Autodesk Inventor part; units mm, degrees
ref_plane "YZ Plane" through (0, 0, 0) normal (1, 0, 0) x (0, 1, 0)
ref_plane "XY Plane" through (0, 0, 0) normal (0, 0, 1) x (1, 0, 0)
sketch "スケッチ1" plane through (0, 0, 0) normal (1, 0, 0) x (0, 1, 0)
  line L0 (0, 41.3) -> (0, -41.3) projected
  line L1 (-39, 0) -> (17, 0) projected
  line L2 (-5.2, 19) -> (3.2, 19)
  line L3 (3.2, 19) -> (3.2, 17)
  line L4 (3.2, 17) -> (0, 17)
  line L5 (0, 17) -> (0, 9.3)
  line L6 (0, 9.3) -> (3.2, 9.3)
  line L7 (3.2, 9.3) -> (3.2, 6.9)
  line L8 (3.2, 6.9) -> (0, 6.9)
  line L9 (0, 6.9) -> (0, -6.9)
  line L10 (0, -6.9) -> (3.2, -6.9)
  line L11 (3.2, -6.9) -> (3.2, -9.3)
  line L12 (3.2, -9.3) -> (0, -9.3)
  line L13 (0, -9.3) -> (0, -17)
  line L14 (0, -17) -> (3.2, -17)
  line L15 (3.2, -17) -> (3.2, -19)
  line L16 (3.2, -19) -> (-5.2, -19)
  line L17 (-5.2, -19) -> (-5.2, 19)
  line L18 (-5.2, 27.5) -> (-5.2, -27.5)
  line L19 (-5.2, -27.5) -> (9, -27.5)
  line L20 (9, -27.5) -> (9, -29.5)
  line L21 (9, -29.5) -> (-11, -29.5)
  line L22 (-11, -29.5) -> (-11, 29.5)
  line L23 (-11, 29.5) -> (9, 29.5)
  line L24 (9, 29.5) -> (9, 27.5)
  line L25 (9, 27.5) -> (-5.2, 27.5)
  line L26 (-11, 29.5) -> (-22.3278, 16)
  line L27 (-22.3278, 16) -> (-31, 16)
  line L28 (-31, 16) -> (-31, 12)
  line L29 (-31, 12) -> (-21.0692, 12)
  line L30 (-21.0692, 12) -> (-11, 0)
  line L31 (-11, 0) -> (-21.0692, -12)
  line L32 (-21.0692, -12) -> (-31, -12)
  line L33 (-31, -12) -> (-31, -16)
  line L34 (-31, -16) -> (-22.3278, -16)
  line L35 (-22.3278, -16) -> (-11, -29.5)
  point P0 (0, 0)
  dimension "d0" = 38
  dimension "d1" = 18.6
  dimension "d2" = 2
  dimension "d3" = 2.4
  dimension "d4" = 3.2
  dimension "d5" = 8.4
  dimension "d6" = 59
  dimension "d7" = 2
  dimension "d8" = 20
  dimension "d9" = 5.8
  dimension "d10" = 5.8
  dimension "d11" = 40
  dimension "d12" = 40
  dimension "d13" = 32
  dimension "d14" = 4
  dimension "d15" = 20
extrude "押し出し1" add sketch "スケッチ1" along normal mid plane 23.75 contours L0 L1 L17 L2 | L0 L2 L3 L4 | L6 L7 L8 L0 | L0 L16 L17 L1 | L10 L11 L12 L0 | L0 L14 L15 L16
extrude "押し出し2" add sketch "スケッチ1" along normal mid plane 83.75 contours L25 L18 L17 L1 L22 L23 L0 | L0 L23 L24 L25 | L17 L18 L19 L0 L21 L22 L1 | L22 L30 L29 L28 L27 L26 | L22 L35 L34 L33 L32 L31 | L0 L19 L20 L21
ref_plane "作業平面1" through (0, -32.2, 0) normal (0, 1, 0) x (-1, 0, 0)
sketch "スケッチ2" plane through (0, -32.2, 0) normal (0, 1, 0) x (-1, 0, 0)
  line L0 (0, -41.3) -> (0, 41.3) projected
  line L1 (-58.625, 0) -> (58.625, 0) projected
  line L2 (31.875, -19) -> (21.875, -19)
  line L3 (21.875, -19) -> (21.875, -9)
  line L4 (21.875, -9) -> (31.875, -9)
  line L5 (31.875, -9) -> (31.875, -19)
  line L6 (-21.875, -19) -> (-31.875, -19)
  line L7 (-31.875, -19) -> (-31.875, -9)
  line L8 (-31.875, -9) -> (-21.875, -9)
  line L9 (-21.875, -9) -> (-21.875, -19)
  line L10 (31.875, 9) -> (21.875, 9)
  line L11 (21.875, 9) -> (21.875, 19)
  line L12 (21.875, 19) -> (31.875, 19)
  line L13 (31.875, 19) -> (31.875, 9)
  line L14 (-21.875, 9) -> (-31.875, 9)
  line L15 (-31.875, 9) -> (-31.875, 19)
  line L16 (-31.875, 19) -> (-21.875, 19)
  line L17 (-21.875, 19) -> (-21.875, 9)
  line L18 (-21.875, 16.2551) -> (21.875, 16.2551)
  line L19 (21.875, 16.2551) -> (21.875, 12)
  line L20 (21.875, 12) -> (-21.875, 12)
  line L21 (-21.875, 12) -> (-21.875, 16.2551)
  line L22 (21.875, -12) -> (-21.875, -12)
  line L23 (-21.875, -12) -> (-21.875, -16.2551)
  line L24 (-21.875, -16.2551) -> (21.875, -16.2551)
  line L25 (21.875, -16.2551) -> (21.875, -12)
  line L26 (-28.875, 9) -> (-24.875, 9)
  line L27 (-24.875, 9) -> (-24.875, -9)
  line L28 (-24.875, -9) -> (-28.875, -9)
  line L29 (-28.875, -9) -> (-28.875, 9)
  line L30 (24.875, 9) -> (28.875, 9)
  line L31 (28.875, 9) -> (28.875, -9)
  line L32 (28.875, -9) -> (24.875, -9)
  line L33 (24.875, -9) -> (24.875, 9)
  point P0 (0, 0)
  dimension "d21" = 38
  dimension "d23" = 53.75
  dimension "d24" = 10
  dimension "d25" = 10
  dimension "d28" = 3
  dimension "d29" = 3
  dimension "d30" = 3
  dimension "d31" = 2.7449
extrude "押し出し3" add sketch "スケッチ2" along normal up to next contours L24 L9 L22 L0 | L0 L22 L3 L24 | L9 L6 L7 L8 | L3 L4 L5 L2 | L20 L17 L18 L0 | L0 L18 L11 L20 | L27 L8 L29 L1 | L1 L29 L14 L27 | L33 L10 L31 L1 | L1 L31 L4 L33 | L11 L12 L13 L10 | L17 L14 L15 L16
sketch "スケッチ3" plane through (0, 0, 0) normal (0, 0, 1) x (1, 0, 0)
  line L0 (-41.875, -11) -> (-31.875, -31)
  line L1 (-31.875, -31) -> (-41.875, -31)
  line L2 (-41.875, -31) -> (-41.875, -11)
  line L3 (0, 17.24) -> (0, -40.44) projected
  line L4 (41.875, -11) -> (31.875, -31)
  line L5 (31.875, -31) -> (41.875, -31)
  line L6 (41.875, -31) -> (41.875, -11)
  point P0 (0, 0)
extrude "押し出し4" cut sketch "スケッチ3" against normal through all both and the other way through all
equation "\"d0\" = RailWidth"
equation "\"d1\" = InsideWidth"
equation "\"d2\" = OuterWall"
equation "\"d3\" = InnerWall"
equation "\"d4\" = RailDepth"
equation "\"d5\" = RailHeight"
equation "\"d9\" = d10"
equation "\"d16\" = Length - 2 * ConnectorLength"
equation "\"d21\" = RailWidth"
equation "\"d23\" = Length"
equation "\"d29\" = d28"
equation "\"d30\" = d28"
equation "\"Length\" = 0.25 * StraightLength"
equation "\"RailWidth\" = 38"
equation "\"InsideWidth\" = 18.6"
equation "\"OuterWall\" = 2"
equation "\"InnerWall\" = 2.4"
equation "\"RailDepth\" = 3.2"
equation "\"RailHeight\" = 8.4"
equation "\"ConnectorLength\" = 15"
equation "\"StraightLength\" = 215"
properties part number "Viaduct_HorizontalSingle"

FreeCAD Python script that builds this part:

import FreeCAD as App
import Part
import Sketcher
Q = App.Units.Quantity


def add_polygon(sketch, points):
    """Adds a closed chain of lines whose ends are joined by coincident constraints."""
    first, n = sketch.GeometryCount, len(points)
    for a, b in zip(points, points[1:] + points[:1]):
        sketch.addGeometry(Part.LineSegment(App.Vector(*a, 0), App.Vector(*b, 0)), False)
    for i in range(n):
        sketch.addConstraint(Sketcher.Constraint("Coincident", first + i, 2, first + (i + 1) % n, 1))

doc = App.newDocument("Part")
body = doc.addObject("PartDesign::Body", "Body")

# Sketch on YZ plane
sketch1 = doc.addObject("Sketcher::SketchObject", "Sketch")
body.addObject(sketch1)
sketch1.AttachmentSupport = (doc.YZ_Plane, [""])
sketch1.MapMode = "FlatFace"
add_polygon(sketch1, [(0, 9.3), (0, 17), (3.2, 17), (3.2, 19), (-5.2, 19), (-5.2, -19), (3.2, -19), (3.2, -17), (0, -17), (0, -9.3), (3.2, -9.3), (3.2, -6.9), (0, -6.9), (0, 6.9), (3.2, 6.9), (3.2, 9.3)])  # lines 0-15
sketch1.addConstraint([
    Sketcher.Constraint("Vertical", 0),
    Sketcher.Constraint("Horizontal", 1),
    Sketcher.Constraint("Vertical", 2),
    Sketcher.Constraint("Horizontal", 3),
    Sketcher.Constraint("Vertical", 4),
    Sketcher.Constraint("Horizontal", 5),
    Sketcher.Constraint("Vertical", 6),
    Sketcher.Constraint("Horizontal", 7),
    Sketcher.Constraint("Vertical", 8),
    Sketcher.Constraint("Horizontal", 9),
    Sketcher.Constraint("Vertical", 10),
    Sketcher.Constraint("Horizontal", 11),
    Sketcher.Constraint("Vertical", 12),
    Sketcher.Constraint("Horizontal", 13),
    Sketcher.Constraint("Vertical", 14),
    Sketcher.Constraint("Horizontal", 15),
    Sketcher.Constraint("Symmetric", 0, 2, 7, 2, -1, 1),
    Sketcher.Constraint("Symmetric", 11, 2, 12, 2, -1, 1),
    Sketcher.Constraint("Symmetric", 2, 2, 5, 2, -1),
    Sketcher.Constraint("Symmetric", 9, 2, 14, 2, -1),
    Sketcher.Constraint("PointOnObject", 0, 2, -2),
    Sketcher.Constraint("Vertical", 6, 2, 9, 2),
    Sketcher.Constraint("DistanceY", 2, 1, 2, 2, 2.0),
    Sketcher.Constraint("DistanceY", 4, 2, 4, 1, 38.0),
    Sketcher.Constraint("DistanceX", 1, 1, 1, 2, 3.2),
    Sketcher.Constraint("DistanceX", 3, 2, 3, 1, 8.4),
    Sketcher.Constraint("DistanceY", 10, 1, 10, 2, 2.4),
    Sketcher.Constraint("DistanceY", 0, 1, 0, 2, 7.7),
])
pad1 = doc.addObject("PartDesign::Pad", "Pad")
body.addObject(pad1)
pad1.Profile = sketch1
pad1.Length = 23.75
pad1.Midplane = True

# Sketch on YZ plane
sketch2 = doc.addObject("Sketcher::SketchObject", "Sketch001")
body.addObject(sketch2)
sketch2.AttachmentSupport = (doc.YZ_Plane, [""])
sketch2.MapMode = "FlatFace"
add_polygon(sketch2, [(-5.2, 27.5), (9, 27.5), (9, 29.5), (-11, 29.5), (-22.3, 16), (-31, 16), (-31, 12), (-21.1, 12), (-11, 0), (-21.1, -12), (-31, -12), (-31, -16), (-22.3, -16), (-11, -29.5), (9, -29.5), (9, -27.5), (-5.2, -27.5)])  # lines 0-16
sketch2.addConstraint([
    Sketcher.Constraint("Horizontal", 0),
    Sketcher.Constraint("Vertical", 1),
    Sketcher.Constraint("Horizontal", 2),
    Sketcher.Constraint("Horizontal", 4),
    Sketcher.Constraint("Vertical", 5),
    Sketcher.Constraint("Horizontal", 6),
    Sketcher.Constraint("Horizontal", 9),
    Sketcher.Constraint("Vertical", 10),
    Sketcher.Constraint("Horizontal", 11),
    Sketcher.Constraint("Horizontal", 13),
    Sketcher.Constraint("Vertical", 14),
    Sketcher.Constraint("Horizontal", 15),
    Sketcher.Constraint("Vertical", 16),
    Sketcher.Constraint("Symmetric", 6, 2, 8, 2, -1),
    Sketcher.Constraint("Symmetric", 4, 2, 10, 2, -1),
    Sketcher.Constraint("Symmetric", 2, 2, 12, 2, -1),
    Sketcher.Constraint("Symmetric", 0, 2, 14, 2, -1),
    Sketcher.Constraint("PointOnObject", 7, 2, -1),
    Sketcher.Constraint("Parallel", 3, 8),
    Sketcher.Constraint("Parallel", 7, 12),
    Sketcher.Constraint("Vertical", 2, 2, 7, 2),
    Sketcher.Constraint("DistanceX", 2, 2, 2, 1, 20.0),
    Sketcher.Constraint("DistanceY", 1, 1, 1, 2, 2.0),
    Sketcher.Constraint("DistanceY", 5, 2, 5, 1, 4.0),
    Sketcher.Constraint("DistanceX", 4, 2, 2, 2, 20.0),
    Sketcher.Constraint("DistanceX", 12, 2, 15, 2, 5.8),
    Sketcher.Constraint("DistanceY", 16, 1, 16, 2, 55.0),
    Sketcher.Constraint("Angle", 3, Q("-130 deg")),
    Sketcher.Constraint("DistanceX", -1, 1, 0, 2, 9.0),
    Sketcher.Constraint("DistanceY", -1, 1, 3, 2, 16.0),
])
pad2 = doc.addObject("PartDesign::Pad", "Pad001")
body.addObject(pad2)
pad2.Profile = sketch2
pad2.Length = 83.75
pad2.Midplane = True

# Sketch on XZ plane
sketch3 = doc.addObject("Sketcher::SketchObject", "Sketch002")
body.addObject(sketch3)
sketch3.AttachmentSupport = (doc.XZ_Plane, [""])
sketch3.MapMode = "FlatFace"
sketch3.AttachmentOffset = App.Placement(App.Vector(0, 0, 32.2), App.Rotation())
add_polygon(sketch3, [(21.9, -16.3), (-21.9, -16.3), (-21.9, -19), (-31.9, -19), (-31.9, -9), (-28.9, -9), (-28.9, 9), (-31.9, 9), (-31.9, 19), (-21.9, 19), (-21.9, 16.3), (21.9, 16.3), (21.9, 19), (31.9, 19), (31.9, 9), (28.9, 9), (28.9, -9), (31.9, -9), (31.9, -19), (21.9, -19)])  # lines 0-19
add_polygon(sketch3, [(21.9, -12), (21.9, -9), (24.9, -9), (24.9, 9), (21.9, 9), (21.9, 12), (-21.9, 12), (-21.9, 9), (-24.9, 9), (-24.9, -9), (-21.9, -9), (-21.9, -12)])  # lines 20-31
sketch3.addConstraint([
    Sketcher.Constraint("Horizontal", 0),
    Sketcher.Constraint("Vertical", 1),
    Sketcher.Constraint("Horizontal", 2),
    Sketcher.Constraint("Vertical", 3),
    Sketcher.Constraint("Horizontal", 4),
    Sketcher.Constraint("Vertical", 5),
    Sketcher.Constraint("Horizontal", 6),
    Sketcher.Constraint("Vertical", 7),
    Sketcher.Constraint("Horizontal", 8),
    Sketcher.Constraint("Vertical", 9),
    Sketcher.Constraint("Horizontal", 10),
    Sketcher.Constraint("Vertical", 11),
    Sketcher.Constraint("Horizontal", 12),
    Sketcher.Constraint("Vertical", 13),
    Sketcher.Constraint("Horizontal", 14),
    Sketcher.Constraint("Vertical", 15),
    Sketcher.Constraint("Horizontal", 16),
    Sketcher.Constraint("Vertical", 17),
    Sketcher.Constraint("Horizontal", 18),
    Sketcher.Constraint("Vertical", 19),
    Sketcher.Constraint("Vertical", 20),
    Sketcher.Constraint("Horizontal", 21),
    Sketcher.Constraint("Vertical", 22),
    Sketcher.Constraint("Horizontal", 23),
    Sketcher.Constraint("Vertical", 24),
    Sketcher.Constraint("Horizontal", 25),
    Sketcher.Constraint("Vertical", 26),
    Sketcher.Constraint("Horizontal", 27),
    Sketcher.Constraint("Vertical", 28),
    Sketcher.Constraint("Horizontal", 29),
    Sketcher.Constraint("Vertical", 30),
    Sketcher.Constraint("Horizontal", 31),
    Sketcher.Constraint("Symmetric", 0, 2, 10, 2, -1, 1),
    Sketcher.Constraint("Symmetric", 2, 2, 12, 2, -1, 1),
    Sketcher.Constraint("Symmetric", 4, 2, 14, 2, -1, 1),
    Sketcher.Constraint("Symmetric", 6, 2, 16, 2, -1, 1),
    Sketcher.Constraint("Symmetric", 8, 2, 18, 2, -1, 1),
    Sketcher.Constraint("Symmetric", 20, 2, 26, 2, -1, 1),
    Sketcher.Constraint("Symmetric", 22, 2, 28, 2, -1, 1),
    Sketcher.Constraint("Symmetric", 24, 2, 30, 2, -1, 1),
    Sketcher.Constraint("Symmetric", 8, 2, 11, 2, -2),
    Sketcher.Constraint("Symmetric", 6, 2, 13, 2, -2),
    Sketcher.Constraint("Symmetric", 23, 2, 26, 2, -2),
    Sketcher.Constraint("Horizontal", 16, 2, 20, 2),
    Sketcher.Constraint("Vertical", 19, 2, 20, 2),
    Sketcher.Constraint("Equal", 16, 21),
    Sketcher.Constraint("Equal", 18, 3),
    Sketcher.Constraint("Equal", 29, 20),
    Sketcher.Constraint("DistanceX", 2, 2, 2, 1, 10.0),
    Sketcher.Constraint("DistanceX", 4, 1, 4, 2, 3.0),
    Sketcher.Constraint("DistanceY", 1, 2, 1, 1, 2.745),
    Sketcher.Constraint("DistanceY", 5, 1, 5, 2, 18.0),
    Sketcher.Constraint("DistanceX", 7, 2, 10, 2, 53.75),
])
pad3 = doc.addObject("PartDesign::Pad", "Pad002")
body.addObject(pad3)
pad3.Profile = sketch3
pad3.Length = 21.2
pad3.Reversed = True

# Sketch on XY plane
sketch4 = doc.addObject("Sketcher::SketchObject", "Sketch003")
body.addObject(sketch4)
sketch4.AttachmentSupport = (doc.XY_Plane, [""])
sketch4.MapMode = "FlatFace"
add_polygon(sketch4, [(-32, -31), (-42, -11), (-42, -31)])  # lines 0-2
add_polygon(sketch4, [(42, -31), (42, -11), (32, -31)])  # lines 3-5
sketch4.addConstraint([
    Sketcher.Constraint("Vertical", 1),
    Sketcher.Constraint("Horizontal", 2),
    Sketcher.Constraint("Vertical", 3),
    Sketcher.Constraint("Horizontal", 5),
    Sketcher.Constraint("Symmetric", 0, 2, 3, 2, -2),
    Sketcher.Constraint("Symmetric", 2, 2, 4, 2, -2),
    Sketcher.Constraint("DistanceX", 2, 1, 2, 2, 10.0),
    Sketcher.Constraint("DistanceY", 1, 2, 1, 1, 20.0),
    Sketcher.Constraint("DistanceY", 0, 2, -1, 1, 11.0),
    Sketcher.Constraint("DistanceX", 2, 2, 3, 2, 73.75),
])
pocket1 = doc.addObject("PartDesign::Pocket", "Pocket")
body.addObject(pocket1)
pocket1.Profile = sketch4
pocket1.Type = "ThroughAll"
pocket1.Midplane = True

doc.recompute()
